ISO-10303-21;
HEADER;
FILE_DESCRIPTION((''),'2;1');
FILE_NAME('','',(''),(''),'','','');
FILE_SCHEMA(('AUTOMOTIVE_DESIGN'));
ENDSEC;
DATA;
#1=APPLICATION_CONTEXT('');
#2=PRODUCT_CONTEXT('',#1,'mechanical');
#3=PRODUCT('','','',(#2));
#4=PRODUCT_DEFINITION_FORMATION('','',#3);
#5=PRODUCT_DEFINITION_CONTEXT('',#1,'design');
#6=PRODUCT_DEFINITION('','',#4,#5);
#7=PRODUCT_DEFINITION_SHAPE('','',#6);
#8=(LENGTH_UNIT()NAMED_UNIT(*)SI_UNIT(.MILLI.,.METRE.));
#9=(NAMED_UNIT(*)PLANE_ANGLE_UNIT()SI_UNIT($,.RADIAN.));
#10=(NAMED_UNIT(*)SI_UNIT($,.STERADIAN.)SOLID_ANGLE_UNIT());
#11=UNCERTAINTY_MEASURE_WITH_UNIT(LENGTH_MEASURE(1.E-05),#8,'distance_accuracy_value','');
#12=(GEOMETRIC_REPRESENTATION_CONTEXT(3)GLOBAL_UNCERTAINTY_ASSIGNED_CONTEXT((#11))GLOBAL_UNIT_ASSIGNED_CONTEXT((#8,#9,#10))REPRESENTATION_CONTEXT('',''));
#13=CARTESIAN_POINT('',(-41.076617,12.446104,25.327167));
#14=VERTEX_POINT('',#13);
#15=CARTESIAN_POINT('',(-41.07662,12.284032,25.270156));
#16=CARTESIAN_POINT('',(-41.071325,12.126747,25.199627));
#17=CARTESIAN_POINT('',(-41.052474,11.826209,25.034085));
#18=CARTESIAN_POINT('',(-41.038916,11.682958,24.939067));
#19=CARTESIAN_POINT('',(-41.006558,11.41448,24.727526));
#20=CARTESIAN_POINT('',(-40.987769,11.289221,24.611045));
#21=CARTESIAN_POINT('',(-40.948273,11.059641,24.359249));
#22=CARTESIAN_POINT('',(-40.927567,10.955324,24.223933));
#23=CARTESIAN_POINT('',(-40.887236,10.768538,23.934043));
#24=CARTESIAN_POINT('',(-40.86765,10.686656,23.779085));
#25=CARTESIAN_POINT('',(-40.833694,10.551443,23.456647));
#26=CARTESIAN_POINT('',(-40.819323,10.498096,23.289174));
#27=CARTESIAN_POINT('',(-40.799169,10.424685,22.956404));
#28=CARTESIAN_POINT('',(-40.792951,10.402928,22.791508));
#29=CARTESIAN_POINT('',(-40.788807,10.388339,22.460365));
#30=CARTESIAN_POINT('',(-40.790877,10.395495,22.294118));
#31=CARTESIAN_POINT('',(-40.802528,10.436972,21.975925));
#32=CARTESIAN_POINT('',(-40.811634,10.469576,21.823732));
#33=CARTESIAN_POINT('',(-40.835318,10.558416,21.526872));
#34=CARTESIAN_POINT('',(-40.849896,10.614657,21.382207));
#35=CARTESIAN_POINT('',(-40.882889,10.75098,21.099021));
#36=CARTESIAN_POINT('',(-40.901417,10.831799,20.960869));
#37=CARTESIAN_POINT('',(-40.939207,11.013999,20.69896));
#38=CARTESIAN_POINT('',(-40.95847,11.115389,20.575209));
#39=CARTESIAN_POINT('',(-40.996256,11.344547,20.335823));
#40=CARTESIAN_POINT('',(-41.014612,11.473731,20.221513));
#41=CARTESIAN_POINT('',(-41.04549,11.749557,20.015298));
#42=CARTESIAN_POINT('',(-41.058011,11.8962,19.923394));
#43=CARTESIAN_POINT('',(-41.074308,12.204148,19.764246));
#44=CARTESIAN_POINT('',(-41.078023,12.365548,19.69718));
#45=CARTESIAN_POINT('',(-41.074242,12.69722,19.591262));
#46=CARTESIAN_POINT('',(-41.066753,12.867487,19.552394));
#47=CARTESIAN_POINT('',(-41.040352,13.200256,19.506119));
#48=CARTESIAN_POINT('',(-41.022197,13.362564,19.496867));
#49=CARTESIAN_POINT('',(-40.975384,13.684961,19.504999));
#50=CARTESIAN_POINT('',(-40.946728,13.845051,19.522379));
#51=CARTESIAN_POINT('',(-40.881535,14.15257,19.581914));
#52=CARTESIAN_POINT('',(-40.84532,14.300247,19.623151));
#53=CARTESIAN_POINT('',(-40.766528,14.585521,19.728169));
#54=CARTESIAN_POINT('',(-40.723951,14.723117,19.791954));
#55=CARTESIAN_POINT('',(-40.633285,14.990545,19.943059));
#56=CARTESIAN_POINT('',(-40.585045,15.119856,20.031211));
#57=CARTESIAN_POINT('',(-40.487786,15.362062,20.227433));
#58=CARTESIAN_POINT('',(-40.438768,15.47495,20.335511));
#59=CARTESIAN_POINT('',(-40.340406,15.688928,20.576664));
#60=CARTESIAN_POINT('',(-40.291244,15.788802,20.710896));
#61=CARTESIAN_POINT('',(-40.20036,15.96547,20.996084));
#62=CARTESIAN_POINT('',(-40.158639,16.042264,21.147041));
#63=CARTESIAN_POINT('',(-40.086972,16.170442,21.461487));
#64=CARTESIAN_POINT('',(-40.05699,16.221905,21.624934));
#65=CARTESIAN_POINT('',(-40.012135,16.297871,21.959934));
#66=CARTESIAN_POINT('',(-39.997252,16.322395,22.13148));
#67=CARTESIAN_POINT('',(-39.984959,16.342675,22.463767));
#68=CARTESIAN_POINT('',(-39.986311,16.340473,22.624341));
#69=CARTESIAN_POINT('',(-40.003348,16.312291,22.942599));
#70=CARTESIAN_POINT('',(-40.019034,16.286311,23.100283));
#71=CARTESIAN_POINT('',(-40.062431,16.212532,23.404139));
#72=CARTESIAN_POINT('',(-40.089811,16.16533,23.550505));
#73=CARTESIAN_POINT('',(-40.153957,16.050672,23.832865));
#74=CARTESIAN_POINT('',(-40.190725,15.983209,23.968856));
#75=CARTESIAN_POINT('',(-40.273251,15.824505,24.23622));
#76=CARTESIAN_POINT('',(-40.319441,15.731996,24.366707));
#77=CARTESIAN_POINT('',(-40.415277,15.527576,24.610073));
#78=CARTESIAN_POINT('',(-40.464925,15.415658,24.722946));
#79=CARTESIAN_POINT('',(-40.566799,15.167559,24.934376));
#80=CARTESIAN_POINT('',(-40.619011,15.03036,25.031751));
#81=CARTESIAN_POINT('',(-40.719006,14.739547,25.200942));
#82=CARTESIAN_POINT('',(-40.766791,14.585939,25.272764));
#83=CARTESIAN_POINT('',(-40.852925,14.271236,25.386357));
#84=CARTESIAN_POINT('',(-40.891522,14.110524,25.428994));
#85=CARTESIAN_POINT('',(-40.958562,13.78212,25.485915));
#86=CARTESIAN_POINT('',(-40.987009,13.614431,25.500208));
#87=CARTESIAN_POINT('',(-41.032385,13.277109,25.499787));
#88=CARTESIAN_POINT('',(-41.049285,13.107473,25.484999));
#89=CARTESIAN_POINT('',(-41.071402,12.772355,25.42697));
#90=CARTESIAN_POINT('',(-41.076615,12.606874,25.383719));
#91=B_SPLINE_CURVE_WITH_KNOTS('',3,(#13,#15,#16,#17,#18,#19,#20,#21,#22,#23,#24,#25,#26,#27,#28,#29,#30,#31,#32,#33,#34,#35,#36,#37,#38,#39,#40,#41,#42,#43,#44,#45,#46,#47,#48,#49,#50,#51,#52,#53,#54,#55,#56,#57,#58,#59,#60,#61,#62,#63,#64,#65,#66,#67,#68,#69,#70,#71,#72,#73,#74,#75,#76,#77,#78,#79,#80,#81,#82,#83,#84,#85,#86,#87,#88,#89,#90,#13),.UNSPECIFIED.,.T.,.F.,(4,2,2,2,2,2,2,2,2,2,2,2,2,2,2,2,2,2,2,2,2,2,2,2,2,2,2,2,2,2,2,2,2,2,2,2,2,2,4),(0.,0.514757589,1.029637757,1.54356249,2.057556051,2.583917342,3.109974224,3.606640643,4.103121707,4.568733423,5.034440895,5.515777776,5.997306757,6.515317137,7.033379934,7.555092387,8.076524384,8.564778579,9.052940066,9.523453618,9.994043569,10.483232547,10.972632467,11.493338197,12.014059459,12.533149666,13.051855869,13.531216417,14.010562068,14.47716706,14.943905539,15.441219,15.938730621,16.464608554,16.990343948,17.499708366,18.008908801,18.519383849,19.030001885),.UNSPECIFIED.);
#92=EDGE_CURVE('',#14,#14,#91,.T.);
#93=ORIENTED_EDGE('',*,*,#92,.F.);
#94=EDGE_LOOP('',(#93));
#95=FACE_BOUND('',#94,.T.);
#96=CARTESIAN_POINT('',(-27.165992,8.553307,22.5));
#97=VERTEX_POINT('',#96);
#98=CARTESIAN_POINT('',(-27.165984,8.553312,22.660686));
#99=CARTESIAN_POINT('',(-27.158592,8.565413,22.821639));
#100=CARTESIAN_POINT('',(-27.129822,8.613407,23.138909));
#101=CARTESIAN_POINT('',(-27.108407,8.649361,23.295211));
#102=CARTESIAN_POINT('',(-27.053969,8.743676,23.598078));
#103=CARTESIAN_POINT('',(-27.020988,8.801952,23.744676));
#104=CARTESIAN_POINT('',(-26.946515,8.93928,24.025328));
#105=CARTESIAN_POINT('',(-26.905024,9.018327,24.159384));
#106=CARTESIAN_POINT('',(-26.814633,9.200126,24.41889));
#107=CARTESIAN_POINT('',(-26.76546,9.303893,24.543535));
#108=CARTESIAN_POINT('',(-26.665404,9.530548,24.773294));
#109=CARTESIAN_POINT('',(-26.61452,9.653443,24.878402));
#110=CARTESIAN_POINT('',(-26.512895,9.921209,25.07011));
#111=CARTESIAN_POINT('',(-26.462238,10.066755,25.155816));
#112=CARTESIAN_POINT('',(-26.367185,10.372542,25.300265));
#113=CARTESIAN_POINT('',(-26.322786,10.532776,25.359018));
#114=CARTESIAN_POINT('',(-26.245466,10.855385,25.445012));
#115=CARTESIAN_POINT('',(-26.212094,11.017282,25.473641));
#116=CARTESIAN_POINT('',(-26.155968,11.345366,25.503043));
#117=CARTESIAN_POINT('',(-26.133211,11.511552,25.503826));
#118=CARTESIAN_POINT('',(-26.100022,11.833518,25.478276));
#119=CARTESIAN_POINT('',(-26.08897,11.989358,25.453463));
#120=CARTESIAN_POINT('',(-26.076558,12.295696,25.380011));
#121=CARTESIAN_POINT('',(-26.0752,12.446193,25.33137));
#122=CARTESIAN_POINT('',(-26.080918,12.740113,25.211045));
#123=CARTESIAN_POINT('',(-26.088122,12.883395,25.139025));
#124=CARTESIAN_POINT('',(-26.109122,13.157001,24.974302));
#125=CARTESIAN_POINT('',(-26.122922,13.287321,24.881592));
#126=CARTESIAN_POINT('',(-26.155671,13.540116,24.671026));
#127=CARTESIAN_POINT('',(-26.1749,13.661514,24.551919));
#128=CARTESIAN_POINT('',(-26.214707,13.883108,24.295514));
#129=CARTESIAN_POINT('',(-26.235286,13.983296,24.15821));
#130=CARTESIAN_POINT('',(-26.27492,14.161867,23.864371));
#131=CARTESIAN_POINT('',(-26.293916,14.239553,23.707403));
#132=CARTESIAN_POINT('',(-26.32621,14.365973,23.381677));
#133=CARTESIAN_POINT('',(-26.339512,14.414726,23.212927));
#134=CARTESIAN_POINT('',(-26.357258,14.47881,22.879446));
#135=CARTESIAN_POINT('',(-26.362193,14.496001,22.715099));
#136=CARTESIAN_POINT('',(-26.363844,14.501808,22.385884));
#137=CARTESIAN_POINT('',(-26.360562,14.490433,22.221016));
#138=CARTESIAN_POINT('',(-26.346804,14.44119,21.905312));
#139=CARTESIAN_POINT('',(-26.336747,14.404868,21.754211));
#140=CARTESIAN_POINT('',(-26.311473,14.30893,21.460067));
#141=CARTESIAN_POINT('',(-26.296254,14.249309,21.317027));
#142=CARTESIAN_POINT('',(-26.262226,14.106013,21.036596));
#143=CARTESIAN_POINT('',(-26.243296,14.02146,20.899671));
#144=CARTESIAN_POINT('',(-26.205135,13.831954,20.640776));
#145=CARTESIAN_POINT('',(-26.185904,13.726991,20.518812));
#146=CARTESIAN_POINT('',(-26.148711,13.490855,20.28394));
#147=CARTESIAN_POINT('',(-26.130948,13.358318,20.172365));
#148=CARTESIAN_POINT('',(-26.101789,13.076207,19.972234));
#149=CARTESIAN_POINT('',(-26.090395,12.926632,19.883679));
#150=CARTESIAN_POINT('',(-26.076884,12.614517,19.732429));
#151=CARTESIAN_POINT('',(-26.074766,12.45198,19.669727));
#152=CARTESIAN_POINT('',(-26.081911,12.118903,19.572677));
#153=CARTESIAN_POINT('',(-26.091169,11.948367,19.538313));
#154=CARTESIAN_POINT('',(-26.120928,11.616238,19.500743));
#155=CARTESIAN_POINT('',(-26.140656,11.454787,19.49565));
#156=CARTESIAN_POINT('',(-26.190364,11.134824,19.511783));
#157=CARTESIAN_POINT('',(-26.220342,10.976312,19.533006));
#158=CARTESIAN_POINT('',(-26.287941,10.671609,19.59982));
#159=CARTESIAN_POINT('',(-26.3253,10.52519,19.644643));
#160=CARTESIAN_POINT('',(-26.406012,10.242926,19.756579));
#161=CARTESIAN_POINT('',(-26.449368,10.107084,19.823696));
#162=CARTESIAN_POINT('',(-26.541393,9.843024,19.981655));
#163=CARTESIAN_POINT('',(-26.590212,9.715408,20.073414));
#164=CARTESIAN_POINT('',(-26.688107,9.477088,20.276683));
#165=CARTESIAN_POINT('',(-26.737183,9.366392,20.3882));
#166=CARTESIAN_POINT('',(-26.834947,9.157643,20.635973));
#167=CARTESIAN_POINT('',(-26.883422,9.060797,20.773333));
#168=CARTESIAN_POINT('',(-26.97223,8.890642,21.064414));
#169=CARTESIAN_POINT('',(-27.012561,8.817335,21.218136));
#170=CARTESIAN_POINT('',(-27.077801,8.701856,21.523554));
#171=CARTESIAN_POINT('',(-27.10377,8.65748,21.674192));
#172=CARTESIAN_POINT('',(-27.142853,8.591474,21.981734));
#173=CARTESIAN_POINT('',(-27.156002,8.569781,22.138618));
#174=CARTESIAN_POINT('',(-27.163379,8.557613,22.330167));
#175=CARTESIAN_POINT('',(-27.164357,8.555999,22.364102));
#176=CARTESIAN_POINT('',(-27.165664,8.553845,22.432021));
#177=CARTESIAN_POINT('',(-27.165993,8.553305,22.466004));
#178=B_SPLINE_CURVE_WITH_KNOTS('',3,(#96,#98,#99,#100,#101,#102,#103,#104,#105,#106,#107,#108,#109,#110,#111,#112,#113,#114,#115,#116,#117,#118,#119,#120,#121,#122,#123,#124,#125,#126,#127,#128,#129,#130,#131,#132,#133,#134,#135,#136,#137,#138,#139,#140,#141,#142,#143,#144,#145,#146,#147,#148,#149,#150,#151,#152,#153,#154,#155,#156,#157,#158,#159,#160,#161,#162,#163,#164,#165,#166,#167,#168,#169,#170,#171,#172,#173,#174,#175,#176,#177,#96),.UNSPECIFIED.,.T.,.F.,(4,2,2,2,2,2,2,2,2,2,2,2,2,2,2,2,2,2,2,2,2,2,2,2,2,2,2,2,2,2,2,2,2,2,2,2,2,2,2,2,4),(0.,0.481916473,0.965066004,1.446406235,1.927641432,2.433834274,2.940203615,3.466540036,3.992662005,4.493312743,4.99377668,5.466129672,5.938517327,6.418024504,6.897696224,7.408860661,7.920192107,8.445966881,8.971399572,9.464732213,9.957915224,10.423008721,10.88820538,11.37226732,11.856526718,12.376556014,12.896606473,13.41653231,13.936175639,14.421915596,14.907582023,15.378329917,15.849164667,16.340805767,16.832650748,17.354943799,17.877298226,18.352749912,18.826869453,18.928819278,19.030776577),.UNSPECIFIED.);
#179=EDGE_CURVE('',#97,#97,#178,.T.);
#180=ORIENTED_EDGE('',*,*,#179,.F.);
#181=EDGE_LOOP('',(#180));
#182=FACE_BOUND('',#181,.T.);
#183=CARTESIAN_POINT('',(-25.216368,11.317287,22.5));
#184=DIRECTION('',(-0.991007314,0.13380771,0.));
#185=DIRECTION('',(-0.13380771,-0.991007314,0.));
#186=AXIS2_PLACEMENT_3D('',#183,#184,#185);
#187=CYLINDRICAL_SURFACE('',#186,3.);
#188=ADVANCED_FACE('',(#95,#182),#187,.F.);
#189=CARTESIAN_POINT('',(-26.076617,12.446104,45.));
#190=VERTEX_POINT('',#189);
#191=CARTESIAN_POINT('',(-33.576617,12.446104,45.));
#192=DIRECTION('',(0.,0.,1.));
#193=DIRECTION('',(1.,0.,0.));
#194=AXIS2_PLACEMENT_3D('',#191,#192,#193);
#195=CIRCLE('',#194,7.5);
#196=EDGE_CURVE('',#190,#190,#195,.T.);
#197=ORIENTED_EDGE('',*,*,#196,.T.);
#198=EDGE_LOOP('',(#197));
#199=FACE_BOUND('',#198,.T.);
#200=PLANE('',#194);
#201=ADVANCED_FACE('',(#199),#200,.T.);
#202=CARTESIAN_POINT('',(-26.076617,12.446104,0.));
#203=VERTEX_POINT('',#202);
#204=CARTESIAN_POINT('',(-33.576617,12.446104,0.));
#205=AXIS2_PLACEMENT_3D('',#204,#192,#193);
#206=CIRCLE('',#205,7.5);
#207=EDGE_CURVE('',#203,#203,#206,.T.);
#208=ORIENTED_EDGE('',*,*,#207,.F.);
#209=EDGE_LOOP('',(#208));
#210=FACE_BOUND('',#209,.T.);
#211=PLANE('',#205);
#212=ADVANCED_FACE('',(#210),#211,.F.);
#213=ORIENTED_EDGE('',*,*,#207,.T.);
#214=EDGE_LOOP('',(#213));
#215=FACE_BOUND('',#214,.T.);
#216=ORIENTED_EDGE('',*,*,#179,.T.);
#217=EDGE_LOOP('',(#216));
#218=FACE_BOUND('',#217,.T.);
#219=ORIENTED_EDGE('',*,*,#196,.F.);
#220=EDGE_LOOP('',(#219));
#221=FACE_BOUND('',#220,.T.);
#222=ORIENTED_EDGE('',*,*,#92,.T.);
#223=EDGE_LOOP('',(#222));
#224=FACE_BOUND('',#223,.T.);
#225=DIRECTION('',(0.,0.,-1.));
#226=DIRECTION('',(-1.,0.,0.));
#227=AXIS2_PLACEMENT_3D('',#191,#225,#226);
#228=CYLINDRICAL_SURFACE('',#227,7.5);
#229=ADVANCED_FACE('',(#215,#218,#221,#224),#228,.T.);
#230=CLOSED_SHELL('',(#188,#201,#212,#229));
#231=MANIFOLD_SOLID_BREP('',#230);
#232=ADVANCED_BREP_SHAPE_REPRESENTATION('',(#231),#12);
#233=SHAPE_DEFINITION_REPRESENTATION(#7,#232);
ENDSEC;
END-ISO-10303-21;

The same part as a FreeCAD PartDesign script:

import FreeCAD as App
import Part
import Sketcher
Q = App.Units.Quantity

doc = App.newDocument("Part")
body = doc.addObject("PartDesign::Body", "Body")

sketch1 = body.newObject("Sketcher::SketchObject", "Sketch")
sketch1.AttachmentSupport = (doc.getObject("XY_Plane"), [""])
sketch1.MapMode = "FlatFace"
sketch1.addGeometry(Part.Circle(App.Vector(-33.576617, 12.446104, 0), App.Vector(0, 0, 1), 7.5), False)
sketch1.addConstraint([
    Sketcher.Constraint("Diameter", 0, Q("15 mm")),
    Sketcher.Constraint("DistanceX", 0, 3, -1, 1, Q("33.576617 mm")),
    Sketcher.Constraint("DistanceY", -1, 1, 0, 3, Q("12.446104 mm")),
])
pad1 = body.newObject("PartDesign::Pad", "Pad")
pad1.Profile = sketch1
pad1.Length = 45

sketch2 = body.newObject("Sketcher::SketchObject", "Sketch001")
sketch2.Placement = App.Placement(App.Vector(-34.625853, 4.675249, 0), App.Rotation(App.Vector(-0.13380771, -0.991007314, 0), App.Vector(0, 0, 1), App.Vector(-0.991007314, 0.13380771, 0), "ZXY"))
sketch2.addGeometry(Part.Circle(App.Vector(-7.84137, 22.5, 0), App.Vector(0, 0, 1), 3), False)
sketch2.addConstraint([
    Sketcher.Constraint("Diameter", 0, Q("6 mm")),
    Sketcher.Constraint("DistanceY", -1, 1, 0, 3, Q("22.5 mm")),
    Sketcher.Constraint("DistanceX", 0, 3, -1, 1, Q("7.84137 mm")),
])
pocket1 = body.newObject("PartDesign::Pocket", "Pocket")
pocket1.Profile = sketch2
pocket1.Type = "ThroughAll"
pocket1.Midplane = True

doc.recompute()
